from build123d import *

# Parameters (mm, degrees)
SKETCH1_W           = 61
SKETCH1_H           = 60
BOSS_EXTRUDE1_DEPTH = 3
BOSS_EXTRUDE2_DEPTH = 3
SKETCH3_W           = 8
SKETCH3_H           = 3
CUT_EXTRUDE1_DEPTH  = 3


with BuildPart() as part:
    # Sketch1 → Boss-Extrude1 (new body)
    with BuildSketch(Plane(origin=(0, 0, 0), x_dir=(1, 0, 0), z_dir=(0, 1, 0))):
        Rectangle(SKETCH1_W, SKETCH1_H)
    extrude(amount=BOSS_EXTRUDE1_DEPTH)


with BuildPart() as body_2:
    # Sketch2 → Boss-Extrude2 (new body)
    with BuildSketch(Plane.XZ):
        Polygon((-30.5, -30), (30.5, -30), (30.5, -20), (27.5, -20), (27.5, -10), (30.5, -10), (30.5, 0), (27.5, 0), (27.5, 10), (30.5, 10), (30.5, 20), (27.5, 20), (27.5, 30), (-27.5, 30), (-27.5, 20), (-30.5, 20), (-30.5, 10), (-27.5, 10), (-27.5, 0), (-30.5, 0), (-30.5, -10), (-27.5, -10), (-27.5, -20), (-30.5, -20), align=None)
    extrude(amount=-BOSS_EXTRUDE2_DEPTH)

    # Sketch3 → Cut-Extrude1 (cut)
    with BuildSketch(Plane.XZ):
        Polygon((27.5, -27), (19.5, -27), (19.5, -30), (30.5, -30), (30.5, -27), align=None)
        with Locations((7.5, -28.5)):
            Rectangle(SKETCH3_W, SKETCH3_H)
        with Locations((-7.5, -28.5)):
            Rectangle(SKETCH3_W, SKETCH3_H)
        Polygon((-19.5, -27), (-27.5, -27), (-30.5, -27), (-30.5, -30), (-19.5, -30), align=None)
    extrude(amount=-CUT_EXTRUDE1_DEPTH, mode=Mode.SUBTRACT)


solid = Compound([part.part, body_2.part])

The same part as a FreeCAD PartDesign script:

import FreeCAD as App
import Part
import Sketcher
Q = App.Units.Quantity


def add_polygon(sketch, points):
    """Adds a closed chain of lines whose ends are joined by coincident constraints."""
    first, n = sketch.GeometryCount, len(points)
    for a, b in zip(points, points[1:] + points[:1]):
        sketch.addGeometry(Part.LineSegment(App.Vector(*a, 0), App.Vector(*b, 0)), False)
    for i in range(n):
        sketch.addConstraint(Sketcher.Constraint("Coincident", first + i, 2, first + (i + 1) % n, 1))

doc = App.newDocument("Part")
body = doc.addObject("PartDesign::Body", "Body")

# Sketch on XZ plane
sketch1 = body.newObject("Sketcher::SketchObject", "Sketch")
sketch1.AttachmentSupport = (doc.getObject("XZ_Plane"), [""])
sketch1.MapMode = "FlatFace"
add_polygon(sketch1, [(-30, -30), (-30, 30), (30, 30), (30, -30)])  # lines 0-3
sketch1.addConstraint([
    Sketcher.Constraint("Vertical", 0),
    Sketcher.Constraint("Horizontal", 1),
    Sketcher.Constraint("Vertical", 2),
    Sketcher.Constraint("Horizontal", 3),
    Sketcher.Constraint("Symmetric", 0, 2, 2, 2, -1, 1),
    Sketcher.Constraint("DistanceX", 1, 1, 1, 2, Q("61 mm")),
    Sketcher.Constraint("DistanceY", 0, 1, 0, 2, Q("60 mm")),
])
pad1 = body.newObject("PartDesign::Pad", "Pad")
pad1.Profile = sketch1
pad1.Length = 3
pad1.Reversed = True
body2 = doc.addObject("PartDesign::Body", "Body001")

# Sketch on XZ plane
sketch2 = body2.newObject("Sketcher::SketchObject", "Sketch001")
sketch2.AttachmentSupport = (doc.getObject("XZ_Plane001"), [""])
sketch2.MapMode = "FlatFace"
add_polygon(sketch2, [(-30.5, -30), (30.5, -30), (30.5, -20), (27.5, -20), (27.5, -10), (30.5, -10), (30.5, 0), (27.5, 0), (27.5, 10), (30.5, 10), (30.5, 20), (27.5, 20), (27.5, 30), (-27.5, 30), (-27.5, 20), (-30.5, 20), (-30.5, 10), (-27.5, 10), (-27.5, 0), (-30.5, 0), (-30.5, -10), (-27.5, -10), (-27.5, -20), (-30.5, -20)])  # lines 0-23
sketch2.addConstraint([
    Sketcher.Constraint("Horizontal", 0),
    Sketcher.Constraint("Vertical", 1),
    Sketcher.Constraint("Horizontal", 2),
    Sketcher.Constraint("Vertical", 3),
    Sketcher.Constraint("Horizontal", 4),
    Sketcher.Constraint("Vertical", 5),
    Sketcher.Constraint("Horizontal", 6),
    Sketcher.Constraint("Vertical", 7),
    Sketcher.Constraint("Horizontal", 8),
    Sketcher.Constraint("Vertical", 9),
    Sketcher.Constraint("Horizontal", 10),
    Sketcher.Constraint("Vertical", 11),
    Sketcher.Constraint("Horizontal", 12),
    Sketcher.Constraint("Vertical", 13),
    Sketcher.Constraint("Horizontal", 14),
    Sketcher.Constraint("Vertical", 15),
    Sketcher.Constraint("Horizontal", 16),
    Sketcher.Constraint("Vertical", 17),
    Sketcher.Constraint("Horizontal", 18),
    Sketcher.Constraint("Vertical", 19),
    Sketcher.Constraint("Horizontal", 20),
    Sketcher.Constraint("Vertical", 21),
    Sketcher.Constraint("Horizontal", 22),
    Sketcher.Constraint("Vertical", 23),
    Sketcher.Constraint("Symmetric", 2, 2, 13, 2, -1, 1),
    Sketcher.Constraint("Symmetric", 4, 2, 15, 2, -1, 1),
    Sketcher.Constraint("Symmetric", 6, 2, 17, 2, -1, 1),
    Sketcher.Constraint("Symmetric", 8, 2, 19, 2, -1, 1),
    Sketcher.Constraint("Symmetric", 10, 2, 21, 2, -1, 1),
    Sketcher.Constraint("Symmetric", 10, 2, 13, 2, -2),
    Sketcher.Constraint("Symmetric", 8, 2, 15, 2, -2),
    Sketcher.Constraint("PointOnObject", 5, 2, -1),
    Sketcher.Constraint("Vertical", 1, 2, 4, 2),
    Sketcher.Constraint("Vertical", 3, 2, 6, 2),
    Sketcher.Constraint("Vertical", 19, 2, 22, 2),
    Sketcher.Constraint("Equal", 1, 3),
    Sketcher.Constraint("Equal", 3, 5),
    Sketcher.Constraint("Equal", 9, 11),
    Sketcher.Constraint("DistanceX", 0, 1, 0, 2, Q("61 mm")),
    Sketcher.Constraint("DistanceX", 2, 2, 2, 1, Q("3 mm")),
    Sketcher.Constraint("DistanceY", 1, 1, 1, 2, Q("10 mm")),
])
pad2 = body2.newObject("PartDesign::Pad", "Pad001")
pad2.Profile = sketch2
pad2.Length = 3
pad2.Reversed = True

# Sketch on XZ plane
sketch3 = body2.newObject("Sketcher::SketchObject", "Sketch002")
sketch3.AttachmentSupport = (doc.getObject("XZ_Plane001"), [""])
sketch3.MapMode = "FlatFace"
add_polygon(sketch3, [(19.5, -27), (19.5, -30), (30.5, -30), (30.5, -27)])  # lines 0-3
add_polygon(sketch3, [(3.5, -27), (3.5, -30), (11.5, -30), (11.5, -27)])  # lines 4-7
add_polygon(sketch3, [(-11.5, -27), (-11.5, -30), (-3.5, -30), (-3.5, -27)])  # lines 8-11
add_polygon(sketch3, [(-19.5, -27), (-30.5, -27), (-30.5, -30), (-19.5, -30)])  # lines 12-15
sketch3.addConstraint([
    Sketcher.Constraint("Vertical", 0),
    Sketcher.Constraint("Horizontal", 1),
    Sketcher.Constraint("Vertical", 2),
    Sketcher.Constraint("Horizontal", 3),
    Sketcher.Constraint("Vertical", 4),
    Sketcher.Constraint("Horizontal", 5),
    Sketcher.Constraint("Vertical", 6),
    Sketcher.Constraint("Horizontal", 7),
    Sketcher.Constraint("Vertical", 8),
    Sketcher.Constraint("Horizontal", 9),
    Sketcher.Constraint("Vertical", 10),
    Sketcher.Constraint("Horizontal", 11),
    Sketcher.Constraint("Horizontal", 12),
    Sketcher.Constraint("Vertical", 13),
    Sketcher.Constraint("Horizontal", 14),
    Sketcher.Constraint("Vertical", 15),
    Sketcher.Constraint("Symmetric", 5, 2, 8, 2, -2),
    Sketcher.Constraint("Symmetric", 7, 2, 10, 2, -2),
    Sketcher.Constraint("Symmetric", 2, 2, 12, 2, -2),
    Sketcher.Constraint("Symmetric", 0, 2, 14, 2, -2),
    Sketcher.Constraint("Horizontal", 1, 2, 4, 2),
    Sketcher.Constraint("Horizontal", 3, 2, 6, 2),
    Sketcher.Constraint("DistanceX", 1, 1, 1, 2, Q("11 mm")),
    Sketcher.Constraint("DistanceX", 5, 1, 5, 2, Q("8 mm")),
    Sketcher.Constraint("DistanceY", 0, 2, 0, 1, Q("3 mm")),
    Sketcher.Constraint("DistanceY", 0, 2, -1, 1, Q("30 mm")),
    Sketcher.Constraint("DistanceX", 4, 2, 0, 2, Q("16 mm")),
    Sketcher.Constraint("DistanceX", 8, 2, 4, 2, Q("15 mm")),
])
pocket1 = body2.newObject("PartDesign::Pocket", "Pocket")
pocket1.Profile = sketch3
pocket1.Length = 3

doc.recompute()
